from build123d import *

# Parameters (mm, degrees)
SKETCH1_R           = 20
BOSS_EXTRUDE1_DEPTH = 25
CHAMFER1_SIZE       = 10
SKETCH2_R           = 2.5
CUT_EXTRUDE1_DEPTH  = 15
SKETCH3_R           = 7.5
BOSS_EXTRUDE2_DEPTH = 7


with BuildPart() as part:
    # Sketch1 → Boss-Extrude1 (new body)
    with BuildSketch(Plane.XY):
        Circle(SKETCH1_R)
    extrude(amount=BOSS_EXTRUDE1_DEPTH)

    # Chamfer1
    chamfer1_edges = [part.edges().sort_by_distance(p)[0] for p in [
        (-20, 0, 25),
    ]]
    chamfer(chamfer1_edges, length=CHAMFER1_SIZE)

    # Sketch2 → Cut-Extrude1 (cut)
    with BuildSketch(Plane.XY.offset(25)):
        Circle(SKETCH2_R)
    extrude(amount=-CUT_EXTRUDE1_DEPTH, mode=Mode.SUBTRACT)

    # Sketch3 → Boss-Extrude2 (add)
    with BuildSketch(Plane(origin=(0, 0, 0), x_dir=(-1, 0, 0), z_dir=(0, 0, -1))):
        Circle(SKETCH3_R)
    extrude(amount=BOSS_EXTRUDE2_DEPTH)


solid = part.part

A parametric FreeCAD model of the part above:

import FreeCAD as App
import Part
import Sketcher


def edges_at(feature, points):
    """Names of the edges that pass closest to the given points."""
    edges = feature.Shape.Edges
    near = lambda p: min(range(len(edges)), key=lambda i: edges[i].distToShape(Part.Vertex(*p))[0])
    return sorted({f"Edge{near(p) + 1}" for p in points})

doc = App.newDocument("Part")
body = doc.addObject("PartDesign::Body", "Body")

# Sketch on XY plane
sketch1 = body.newObject("Sketcher::SketchObject", "Sketch")
sketch1.AttachmentSupport = (doc.getObject("XY_Plane"), [""])
sketch1.MapMode = "FlatFace"
sketch1.addGeometry(Part.Circle(App.Vector(0, 0, 0), App.Vector(0, 0, 1), 20), False)
sketch1.addConstraint([
    Sketcher.Constraint("Coincident", 0, 3, -1, 1),
    Sketcher.Constraint("Diameter", 0, 40.0),
])
pad1 = body.newObject("PartDesign::Pad", "Pad")
pad1.Profile = sketch1
pad1.Length = 25
doc.recompute()

chamfer = body.newObject("PartDesign::Chamfer", "Chamfer")
chamfer.Base = (pad1, edges_at(pad1, [(-20, 0, 25)]))
chamfer.Size = 10

# Sketch on XY plane
sketch2 = body.newObject("Sketcher::SketchObject", "Sketch001")
sketch2.AttachmentSupport = (doc.getObject("XY_Plane"), [""])
sketch2.MapMode = "FlatFace"
sketch2.AttachmentOffset = App.Placement(App.Vector(0, 0, 25), App.Rotation())
sketch2.addGeometry(Part.Circle(App.Vector(0, 0, 0), App.Vector(0, 0, 1), 2.5), False)
sketch2.addConstraint([
    Sketcher.Constraint("Coincident", 0, 3, -1, 1),
    Sketcher.Constraint("Diameter", 0, 5.0),
])
pocket1 = body.newObject("PartDesign::Pocket", "Pocket")
pocket1.Profile = sketch2
pocket1.Length = 15

# Sketch on XY plane
sketch3 = body.newObject("Sketcher::SketchObject", "Sketch002")
sketch3.AttachmentSupport = (doc.getObject("XY_Plane"), [""])
sketch3.MapMode = "FlatFace"
sketch3.addGeometry(Part.Circle(App.Vector(0, 0, 0), App.Vector(0, 0, 1), 8), False)
sketch3.addConstraint([
    Sketcher.Constraint("Coincident", 0, 3, -1, 1),
    Sketcher.Constraint("Diameter", 0, 15.0),
])
pad2 = body.newObject("PartDesign::Pad", "Pad001")
pad2.Profile = sketch3
pad2.Length = 7
pad2.Reversed = True

doc.recompute()
